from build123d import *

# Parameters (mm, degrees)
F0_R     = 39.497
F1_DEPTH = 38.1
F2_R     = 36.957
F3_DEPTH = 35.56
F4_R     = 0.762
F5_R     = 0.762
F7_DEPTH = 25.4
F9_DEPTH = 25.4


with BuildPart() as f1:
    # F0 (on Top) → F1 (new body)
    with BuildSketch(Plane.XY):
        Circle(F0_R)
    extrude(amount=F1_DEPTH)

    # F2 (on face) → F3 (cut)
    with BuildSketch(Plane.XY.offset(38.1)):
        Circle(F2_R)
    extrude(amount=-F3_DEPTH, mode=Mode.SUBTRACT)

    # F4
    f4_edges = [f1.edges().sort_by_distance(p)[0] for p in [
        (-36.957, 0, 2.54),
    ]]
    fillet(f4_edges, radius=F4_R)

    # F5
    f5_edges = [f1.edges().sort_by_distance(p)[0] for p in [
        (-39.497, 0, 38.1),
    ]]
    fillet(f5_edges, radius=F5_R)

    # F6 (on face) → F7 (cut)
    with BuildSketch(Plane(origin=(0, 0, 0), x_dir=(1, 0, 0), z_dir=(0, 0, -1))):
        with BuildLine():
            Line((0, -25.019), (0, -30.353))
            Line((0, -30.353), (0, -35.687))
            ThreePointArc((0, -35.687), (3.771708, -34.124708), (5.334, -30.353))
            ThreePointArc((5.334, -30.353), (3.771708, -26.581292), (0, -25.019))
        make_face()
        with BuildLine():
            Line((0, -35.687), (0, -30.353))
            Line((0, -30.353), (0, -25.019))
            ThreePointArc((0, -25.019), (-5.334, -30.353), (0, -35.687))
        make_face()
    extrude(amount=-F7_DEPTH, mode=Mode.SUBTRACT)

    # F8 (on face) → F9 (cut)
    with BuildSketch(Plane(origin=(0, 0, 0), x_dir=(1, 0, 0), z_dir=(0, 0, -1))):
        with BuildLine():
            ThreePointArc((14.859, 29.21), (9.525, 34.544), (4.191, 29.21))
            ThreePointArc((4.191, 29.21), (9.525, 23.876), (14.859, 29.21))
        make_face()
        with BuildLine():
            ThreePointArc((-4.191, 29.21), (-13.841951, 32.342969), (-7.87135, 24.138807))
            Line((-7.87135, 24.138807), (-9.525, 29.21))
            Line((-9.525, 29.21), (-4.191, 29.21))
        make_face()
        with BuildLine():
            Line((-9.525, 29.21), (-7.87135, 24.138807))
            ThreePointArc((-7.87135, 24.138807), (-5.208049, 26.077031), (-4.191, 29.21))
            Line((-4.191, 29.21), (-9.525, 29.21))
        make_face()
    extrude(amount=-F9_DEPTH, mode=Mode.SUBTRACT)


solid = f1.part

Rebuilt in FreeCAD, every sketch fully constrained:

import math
import FreeCAD as App
import Part
import Sketcher
from FreeCAD import Vector
Q = App.Units.Quantity


def edges_at(feature, points):
    """Names of the edges that pass closest to the given points."""
    edges = feature.Shape.Edges
    near = lambda p: min(range(len(edges)), key=lambda i: edges[i].distToShape(Part.Vertex(*p))[0])
    return sorted({f"Edge{near(p) + 1}" for p in points})

doc = App.newDocument("Part")
params = doc.addObject("Spreadsheet::Sheet", "Params")
for row, (alias, value) in enumerate([
    ("sketch1_diameter", "3.11 in"),
    ("pad1_length", "1.5 in"),
    ("sketch2_diameter", "2.91 in"),
    ("pocket1_length", "1.4 in"),
    ("fillet_radius", "0.03 in"),
    ("fillet2_radius", "0.03 in"),
    ("sketch3_radius", "0.2099999 in"),
    ("pocket2_length", "1 in"),
    ("sketch4_diameter", "0.42 in"),
    ("pocket3_length", "1 in"),
], start=1):
    params.set(f"A{row}", alias)
    params.set(f"B{row}", "=" + value)
    params.setAlias(f"B{row}", alias)

body = doc.addObject("PartDesign::Body", "Body")

sketch1 = body.newObject("Sketcher::SketchObject", "Sketch")
sketch1.AttachmentSupport = (doc.getObject("XY_Plane"), [""])
sketch1.MapMode = "FlatFace"
sketch1.addGeometry(Part.Circle(Vector(0, 0, 0), Vector(0, 0, 1), 39), False)
sketch1.addConstraint([
    Sketcher.Constraint("Coincident", 0, 3, -1, 1),
    Sketcher.Constraint("Diameter", 0, Q("3.11 in")),
])
sketch1.setExpression("Constraints[1]", "Params.sketch1_diameter")
pad1 = body.newObject("PartDesign::Pad", "Pad")
pad1.Profile = sketch1
pad1.setExpression("Length", "Params.pad1_length")

sketch2 = body.newObject("Sketcher::SketchObject", "Sketch001")
sketch2.AttachmentSupport = (doc.getObject("XY_Plane"), [""])
sketch2.MapMode = "FlatFace"
sketch2.AttachmentOffset = App.Placement(Vector(0, 0, 1.5 * 25.4), App.Rotation())
sketch2.addGeometry(Part.Circle(Vector(0, 0, 0), Vector(0, 0, 1), 37), False)
sketch2.addConstraint([
    Sketcher.Constraint("Coincident", 0, 3, -1, 1),
    Sketcher.Constraint("Diameter", 0, Q("2.91 in")),
])
sketch2.setExpression("Constraints[1]", "Params.sketch2_diameter")
pocket1 = body.newObject("PartDesign::Pocket", "Pocket")
pocket1.Profile = sketch2
pocket1.setExpression("Length", "Params.pocket1_length")
doc.recompute()

fillet = body.newObject("PartDesign::Fillet", "Fillet")
fillet.Base = (pocket1, edges_at(pocket1, [(-36.957, 0, 2.54)]))
fillet.setExpression("Radius", "Params.fillet_radius")
doc.recompute()

fillet2 = body.newObject("PartDesign::Fillet", "Fillet001")
fillet2.Base = (fillet, edges_at(fillet, [(-39.497, 0, 38.1)]))
fillet2.setExpression("Radius", "Params.fillet2_radius")

sketch3 = body.newObject("Sketcher::SketchObject", "Sketch002")
sketch3.AttachmentSupport = (doc.getObject("XY_Plane"), [""])
sketch3.MapMode = "FlatFace"
sketch3.addGeometry([
    Part.ArcOfCircle(Part.Circle(Vector(0, 30, 0), Vector(0, 0, 1), 5), math.radians(0), math.radians(90)),
    Part.ArcOfCircle(Part.Circle(Vector(0, 30, 0), Vector(0, 0, 1), 5), math.radians(-90), math.radians(0)),
    Part.ArcOfCircle(Part.Circle(Vector(0, 30, 0), Vector(0, 0, 1), 5), math.radians(90), math.radians(270)),
], False)
sketch3.addConstraint([
    Sketcher.Constraint("Tangent", 0, 1, 1, 2),
    Sketcher.Constraint("Tangent", 1, 1, 2, 2),
    Sketcher.Constraint("Tangent", 2, 1, 0, 2),
    Sketcher.Constraint("PointOnObject", 0, 3, -2),
    Sketcher.Constraint("PointOnObject", 1, 1, -2),
    Sketcher.Constraint("PointOnObject", 2, 1, -2),
    Sketcher.Constraint("Horizontal", 2, 3, 0, 1),
    Sketcher.Constraint("Radius", 0, Q("0.2099999 in")),
    Sketcher.Constraint("DistanceY", -1, 1, 0, 3, Q("1.1950001 in")),
])
sketch3.setExpression("Constraints[7]", "Params.sketch3_radius")
pocket2 = body.newObject("PartDesign::Pocket", "Pocket001")
pocket2.Profile = sketch3
pocket2.setExpression("Length", "Params.pocket2_length")
pocket2.Reversed = True

sketch4 = body.newObject("Sketcher::SketchObject", "Sketch003")
sketch4.AttachmentSupport = (doc.getObject("XY_Plane"), [""])
sketch4.MapMode = "FlatFace"
sketch4.addGeometry([
    Part.Circle(Vector(10, -29, 0), Vector(0, 0, 1), 5),
    Part.ArcOfCircle(Part.Circle(Vector(-10, -29, 0), Vector(0, 0, 1), 5), math.radians(72), math.radians(360)),
    Part.ArcOfCircle(Part.Circle(Vector(-10, -29, 0), Vector(0, 0, 1), 5), math.radians(0), math.radians(72)),
], False)
sketch4.addConstraint([
    Sketcher.Constraint("Tangent", 1, 1, 2, 2),
    Sketcher.Constraint("Coincident", 2, 1, 1, 2),
    Sketcher.Constraint("Equal", 0, 1),
    Sketcher.Constraint("Symmetric", 0, 3, 1, 3, -2),
    Sketcher.Constraint("Horizontal", 1, 3, 2, 1),
    Sketcher.Constraint("Diameter", 0, Q("0.42 in")),
    Sketcher.Constraint("DistanceY", 0, 3, -1, 1, Q("1.15 in")),
    Sketcher.Constraint("DistanceX", 1, 3, 0, 3, Q("0.75 in")),
    Sketcher.Constraint("DistanceX", 1, 1, -1, 1, 7.87135),
])
sketch4.setExpression("Constraints[5]", "Params.sketch4_diameter")
pocket3 = body.newObject("PartDesign::Pocket", "Pocket002")
pocket3.Profile = sketch4
pocket3.setExpression("Length", "Params.pocket3_length")
pocket3.Reversed = True

doc.recompute()
